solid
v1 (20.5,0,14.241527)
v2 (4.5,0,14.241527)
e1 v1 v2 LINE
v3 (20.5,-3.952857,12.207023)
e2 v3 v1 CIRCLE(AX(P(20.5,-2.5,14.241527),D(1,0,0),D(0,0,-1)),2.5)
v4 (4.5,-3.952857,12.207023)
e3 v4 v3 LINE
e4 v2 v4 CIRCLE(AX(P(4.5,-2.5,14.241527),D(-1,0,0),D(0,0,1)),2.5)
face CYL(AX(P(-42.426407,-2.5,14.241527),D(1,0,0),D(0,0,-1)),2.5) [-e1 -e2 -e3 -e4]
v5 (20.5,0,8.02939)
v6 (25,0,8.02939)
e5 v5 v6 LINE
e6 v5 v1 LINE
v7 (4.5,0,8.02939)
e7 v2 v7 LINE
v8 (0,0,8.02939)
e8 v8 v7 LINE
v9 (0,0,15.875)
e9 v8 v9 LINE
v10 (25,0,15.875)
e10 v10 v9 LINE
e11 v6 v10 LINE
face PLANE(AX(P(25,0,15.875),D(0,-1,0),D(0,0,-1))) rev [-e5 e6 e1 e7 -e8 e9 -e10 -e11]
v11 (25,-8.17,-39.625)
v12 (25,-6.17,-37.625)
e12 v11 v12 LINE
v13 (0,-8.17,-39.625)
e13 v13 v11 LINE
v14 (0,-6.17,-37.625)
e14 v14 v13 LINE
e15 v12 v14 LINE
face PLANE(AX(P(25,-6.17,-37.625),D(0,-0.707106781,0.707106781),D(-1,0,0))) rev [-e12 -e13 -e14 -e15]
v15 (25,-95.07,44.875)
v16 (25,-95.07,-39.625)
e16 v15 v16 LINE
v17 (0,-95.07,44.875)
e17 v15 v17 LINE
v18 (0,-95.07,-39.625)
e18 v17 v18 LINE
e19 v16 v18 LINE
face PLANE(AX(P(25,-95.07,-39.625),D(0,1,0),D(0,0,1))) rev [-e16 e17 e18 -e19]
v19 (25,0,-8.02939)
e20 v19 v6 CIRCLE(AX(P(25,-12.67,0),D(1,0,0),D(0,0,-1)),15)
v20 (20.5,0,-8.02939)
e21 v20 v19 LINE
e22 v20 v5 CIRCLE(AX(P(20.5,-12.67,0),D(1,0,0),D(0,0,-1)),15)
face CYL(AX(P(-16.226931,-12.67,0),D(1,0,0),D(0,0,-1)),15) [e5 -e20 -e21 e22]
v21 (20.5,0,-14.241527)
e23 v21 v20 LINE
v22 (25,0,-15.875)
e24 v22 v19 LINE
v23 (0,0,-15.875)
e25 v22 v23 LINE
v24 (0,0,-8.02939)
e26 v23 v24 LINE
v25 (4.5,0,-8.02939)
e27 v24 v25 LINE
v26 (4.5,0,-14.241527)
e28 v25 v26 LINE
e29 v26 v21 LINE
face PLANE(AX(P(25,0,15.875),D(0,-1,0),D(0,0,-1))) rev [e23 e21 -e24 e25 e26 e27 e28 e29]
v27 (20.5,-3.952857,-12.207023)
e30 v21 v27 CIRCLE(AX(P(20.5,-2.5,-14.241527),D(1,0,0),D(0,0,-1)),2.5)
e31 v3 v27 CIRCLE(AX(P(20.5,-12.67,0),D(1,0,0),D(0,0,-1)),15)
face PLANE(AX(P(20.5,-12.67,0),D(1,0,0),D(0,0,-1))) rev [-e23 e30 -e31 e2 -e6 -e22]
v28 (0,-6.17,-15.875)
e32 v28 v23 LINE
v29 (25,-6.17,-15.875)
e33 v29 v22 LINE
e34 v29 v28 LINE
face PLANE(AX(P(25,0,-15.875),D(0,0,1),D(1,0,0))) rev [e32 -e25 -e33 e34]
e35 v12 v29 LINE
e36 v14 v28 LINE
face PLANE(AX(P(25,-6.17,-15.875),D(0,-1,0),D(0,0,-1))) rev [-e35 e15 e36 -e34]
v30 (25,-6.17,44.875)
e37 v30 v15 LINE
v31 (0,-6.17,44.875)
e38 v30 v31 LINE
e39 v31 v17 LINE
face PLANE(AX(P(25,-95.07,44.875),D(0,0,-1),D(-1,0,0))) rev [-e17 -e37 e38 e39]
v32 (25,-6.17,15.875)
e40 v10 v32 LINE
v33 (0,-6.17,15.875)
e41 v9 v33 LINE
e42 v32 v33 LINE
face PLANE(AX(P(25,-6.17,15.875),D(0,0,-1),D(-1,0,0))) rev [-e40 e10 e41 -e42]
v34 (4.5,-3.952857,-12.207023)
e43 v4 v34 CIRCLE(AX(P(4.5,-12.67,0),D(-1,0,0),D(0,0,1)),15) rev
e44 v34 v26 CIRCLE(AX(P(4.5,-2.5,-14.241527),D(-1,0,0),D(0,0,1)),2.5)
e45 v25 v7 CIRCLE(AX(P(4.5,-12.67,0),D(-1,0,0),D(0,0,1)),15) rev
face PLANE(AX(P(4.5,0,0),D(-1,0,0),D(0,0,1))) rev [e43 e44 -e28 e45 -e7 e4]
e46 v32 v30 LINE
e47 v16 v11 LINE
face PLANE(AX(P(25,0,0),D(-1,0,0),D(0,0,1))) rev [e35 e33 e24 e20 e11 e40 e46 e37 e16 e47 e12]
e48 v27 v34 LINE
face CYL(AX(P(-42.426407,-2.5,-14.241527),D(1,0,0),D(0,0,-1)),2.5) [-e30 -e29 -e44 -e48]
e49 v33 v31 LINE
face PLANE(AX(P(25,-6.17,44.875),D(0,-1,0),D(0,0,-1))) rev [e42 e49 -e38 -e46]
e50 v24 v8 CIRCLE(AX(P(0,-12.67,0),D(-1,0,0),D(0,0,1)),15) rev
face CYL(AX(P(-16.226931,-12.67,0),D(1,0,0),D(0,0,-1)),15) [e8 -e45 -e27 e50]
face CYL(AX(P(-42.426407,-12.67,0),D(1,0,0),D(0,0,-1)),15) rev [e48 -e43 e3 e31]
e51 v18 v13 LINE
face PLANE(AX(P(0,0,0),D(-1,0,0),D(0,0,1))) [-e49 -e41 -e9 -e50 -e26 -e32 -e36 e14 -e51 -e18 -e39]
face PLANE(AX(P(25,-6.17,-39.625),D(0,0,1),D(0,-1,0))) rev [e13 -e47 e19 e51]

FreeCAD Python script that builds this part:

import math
import FreeCAD as App
import Part
import Sketcher

V = App.Vector
Q = App.Units.Quantity


def edges_at(feature, points):
    """Names of the edges that pass closest to the given points."""
    edges = feature.Shape.Edges
    near = lambda p: min(range(len(edges)), key=lambda i: edges[i].distToShape(Part.Vertex(*p))[0])
    return sorted({f"Edge{near(p) + 1}" for p in points})

doc = App.newDocument("Part")
body = doc.addObject("PartDesign::Body", "Body")

sketch1 = body.newObject("Sketcher::SketchObject", "Sketch")
sketch1.AttachmentSupport = (doc.getObject("YZ_Plane"), [""])
sketch1.MapMode = "FlatFace"
sketch1.addGeometry(Part.LineSegment(V(-6, 45, 0), V(-95, 45, 0)), False)
sketch1.addGeometry(Part.LineSegment(V(-95, 45, 0), V(-95, -40, 0)), False)
sketch1.addGeometry(Part.LineSegment(V(-95, -40, 0), V(-6, -40, 0)), False)
sketch1.addGeometry(Part.LineSegment(V(-6, -40, 0), V(-6, -16, 0)), False)
sketch1.addGeometry(Part.LineSegment(V(-6, -16, 0), V(0, -16, 0)), False)
sketch1.addGeometry(Part.LineSegment(V(0, -16, 0), V(0, 16, 0)), False)
sketch1.addGeometry(Part.LineSegment(V(0, 16, 0), V(-6, 16, 0)), False)
sketch1.addGeometry(Part.LineSegment(V(-6, 16, 0), V(-6, 45, 0)), False)
sketch1.addConstraint(Sketcher.Constraint("Coincident", 0, 2, 1, 1))
sketch1.addConstraint(Sketcher.Constraint("Coincident", 1, 2, 2, 1))
sketch1.addConstraint(Sketcher.Constraint("Coincident", 2, 2, 3, 1))
sketch1.addConstraint(Sketcher.Constraint("Coincident", 3, 2, 4, 1))
sketch1.addConstraint(Sketcher.Constraint("Coincident", 4, 2, 5, 1))
sketch1.addConstraint(Sketcher.Constraint("Coincident", 5, 2, 6, 1))
sketch1.addConstraint(Sketcher.Constraint("Coincident", 6, 2, 7, 1))
sketch1.addConstraint(Sketcher.Constraint("Coincident", 7, 2, 0, 1))
sketch1.addConstraint(Sketcher.Constraint("Horizontal", 0))
sketch1.addConstraint(Sketcher.Constraint("Vertical", 1))
sketch1.addConstraint(Sketcher.Constraint("Horizontal", 2))
sketch1.addConstraint(Sketcher.Constraint("Vertical", 3))
sketch1.addConstraint(Sketcher.Constraint("Horizontal", 4))
sketch1.addConstraint(Sketcher.Constraint("Vertical", 5))
sketch1.addConstraint(Sketcher.Constraint("Horizontal", 6))
sketch1.addConstraint(Sketcher.Constraint("Vertical", 7))
sketch1.addConstraint(Sketcher.Constraint("Symmetric", 4, 2, 5, 2, -1, 1))
sketch1.addConstraint(Sketcher.Constraint("Vertical", 3, 2, 6, 2))
sketch1.addConstraint(Sketcher.Constraint("DistanceY", 7, 1, 7, 2, Q("29 mm")))
sketch1.addConstraint(Sketcher.Constraint("DistanceX", 0, 2, 0, 1, Q("88.9 mm")))
sketch1.addConstraint(Sketcher.Constraint("DistanceY", 1, 2, 1, 1, Q("84.5 mm")))
sketch1.addConstraint(Sketcher.Constraint("DistanceX", 4, 1, 4, 2, Q("6.17 mm")))
sketch1.addConstraint(Sketcher.Constraint("DistanceY", 3, 1, 3, 2, Q("23.75 mm")))
pad1 = body.newObject("PartDesign::Pad", "Pad")
pad1.Profile = sketch1
pad1.Length = 25

sketch2 = body.newObject("Sketcher::SketchObject", "Sketch001")
sketch2.AttachmentSupport = (doc.getObject("YZ_Plane"), [""])
sketch2.MapMode = "FlatFace"
sketch2.AttachmentOffset = App.Placement(V(0, 0, 25), App.Rotation())
sketch2.addGeometry(Part.LineSegment(V(0, 8, 0), V(0, -8, 0)), False)
sketch2.addGeometry(Part.ArcOfCircle(Part.Circle(V(-13, 0, 0), V(0, 0, 1), 15), math.radians(-32), math.radians(32)), False)
sketch2.addConstraint(Sketcher.Constraint("Coincident", 0, 1, 1, 2))
sketch2.addConstraint(Sketcher.Constraint("Coincident", 1, 1, 0, 2))
sketch2.addConstraint(Sketcher.Constraint("Vertical", 0))
sketch2.addConstraint(Sketcher.Constraint("Symmetric", 0, 1, 1, 1, -1, 1))
sketch2.addConstraint(Sketcher.Constraint("Radius", 1, Q("15 mm")))
sketch2.addConstraint(Sketcher.Constraint("DistanceX", 1, 3, -1, 1, Q("12.67 mm")))
pad2 = body.newObject("PartDesign::Pad", "Pad001")
pad2.Profile = sketch2
pad2.Length = 25
pad2.Reversed = True

sketch3 = body.newObject("Sketcher::SketchObject", "Sketch002")
sketch3.AttachmentSupport = (doc.getObject("YZ_Plane"), [""])
sketch3.MapMode = "FlatFace"
sketch3.AttachmentOffset = App.Placement(V(0, 0, 20.5), App.Rotation())
sketch3.addGeometry(Part.Circle(V(-13, 0, 0), V(0, 0, 1), 15), False)
sketch3.addConstraint(Sketcher.Constraint("PointOnObject", 0, 3, -1))
sketch3.addConstraint(Sketcher.Constraint("Diameter", 0, Q("30 mm")))
sketch3.addConstraint(Sketcher.Constraint("DistanceX", 0, 3, -1, 1, Q("12.67 mm")))
pocket1 = body.newObject("PartDesign::Pocket", "Pocket")
pocket1.Profile = sketch3
pocket1.Length = 16
doc.recompute()

chamfer = body.newObject("PartDesign::Chamfer", "Chamfer")
chamfer.Base = (pocket1, edges_at(pocket1, [(12.5, -6.17, -39.625)]))
chamfer.Size = 2
doc.recompute()

fillet = body.newObject("PartDesign::Fillet", "Fillet")
fillet.Base = (chamfer, edges_at(chamfer, [(12.5, 0, -8.029), (12.5, 0, 8.029)]))
fillet.Radius = 2.5

doc.recompute()
